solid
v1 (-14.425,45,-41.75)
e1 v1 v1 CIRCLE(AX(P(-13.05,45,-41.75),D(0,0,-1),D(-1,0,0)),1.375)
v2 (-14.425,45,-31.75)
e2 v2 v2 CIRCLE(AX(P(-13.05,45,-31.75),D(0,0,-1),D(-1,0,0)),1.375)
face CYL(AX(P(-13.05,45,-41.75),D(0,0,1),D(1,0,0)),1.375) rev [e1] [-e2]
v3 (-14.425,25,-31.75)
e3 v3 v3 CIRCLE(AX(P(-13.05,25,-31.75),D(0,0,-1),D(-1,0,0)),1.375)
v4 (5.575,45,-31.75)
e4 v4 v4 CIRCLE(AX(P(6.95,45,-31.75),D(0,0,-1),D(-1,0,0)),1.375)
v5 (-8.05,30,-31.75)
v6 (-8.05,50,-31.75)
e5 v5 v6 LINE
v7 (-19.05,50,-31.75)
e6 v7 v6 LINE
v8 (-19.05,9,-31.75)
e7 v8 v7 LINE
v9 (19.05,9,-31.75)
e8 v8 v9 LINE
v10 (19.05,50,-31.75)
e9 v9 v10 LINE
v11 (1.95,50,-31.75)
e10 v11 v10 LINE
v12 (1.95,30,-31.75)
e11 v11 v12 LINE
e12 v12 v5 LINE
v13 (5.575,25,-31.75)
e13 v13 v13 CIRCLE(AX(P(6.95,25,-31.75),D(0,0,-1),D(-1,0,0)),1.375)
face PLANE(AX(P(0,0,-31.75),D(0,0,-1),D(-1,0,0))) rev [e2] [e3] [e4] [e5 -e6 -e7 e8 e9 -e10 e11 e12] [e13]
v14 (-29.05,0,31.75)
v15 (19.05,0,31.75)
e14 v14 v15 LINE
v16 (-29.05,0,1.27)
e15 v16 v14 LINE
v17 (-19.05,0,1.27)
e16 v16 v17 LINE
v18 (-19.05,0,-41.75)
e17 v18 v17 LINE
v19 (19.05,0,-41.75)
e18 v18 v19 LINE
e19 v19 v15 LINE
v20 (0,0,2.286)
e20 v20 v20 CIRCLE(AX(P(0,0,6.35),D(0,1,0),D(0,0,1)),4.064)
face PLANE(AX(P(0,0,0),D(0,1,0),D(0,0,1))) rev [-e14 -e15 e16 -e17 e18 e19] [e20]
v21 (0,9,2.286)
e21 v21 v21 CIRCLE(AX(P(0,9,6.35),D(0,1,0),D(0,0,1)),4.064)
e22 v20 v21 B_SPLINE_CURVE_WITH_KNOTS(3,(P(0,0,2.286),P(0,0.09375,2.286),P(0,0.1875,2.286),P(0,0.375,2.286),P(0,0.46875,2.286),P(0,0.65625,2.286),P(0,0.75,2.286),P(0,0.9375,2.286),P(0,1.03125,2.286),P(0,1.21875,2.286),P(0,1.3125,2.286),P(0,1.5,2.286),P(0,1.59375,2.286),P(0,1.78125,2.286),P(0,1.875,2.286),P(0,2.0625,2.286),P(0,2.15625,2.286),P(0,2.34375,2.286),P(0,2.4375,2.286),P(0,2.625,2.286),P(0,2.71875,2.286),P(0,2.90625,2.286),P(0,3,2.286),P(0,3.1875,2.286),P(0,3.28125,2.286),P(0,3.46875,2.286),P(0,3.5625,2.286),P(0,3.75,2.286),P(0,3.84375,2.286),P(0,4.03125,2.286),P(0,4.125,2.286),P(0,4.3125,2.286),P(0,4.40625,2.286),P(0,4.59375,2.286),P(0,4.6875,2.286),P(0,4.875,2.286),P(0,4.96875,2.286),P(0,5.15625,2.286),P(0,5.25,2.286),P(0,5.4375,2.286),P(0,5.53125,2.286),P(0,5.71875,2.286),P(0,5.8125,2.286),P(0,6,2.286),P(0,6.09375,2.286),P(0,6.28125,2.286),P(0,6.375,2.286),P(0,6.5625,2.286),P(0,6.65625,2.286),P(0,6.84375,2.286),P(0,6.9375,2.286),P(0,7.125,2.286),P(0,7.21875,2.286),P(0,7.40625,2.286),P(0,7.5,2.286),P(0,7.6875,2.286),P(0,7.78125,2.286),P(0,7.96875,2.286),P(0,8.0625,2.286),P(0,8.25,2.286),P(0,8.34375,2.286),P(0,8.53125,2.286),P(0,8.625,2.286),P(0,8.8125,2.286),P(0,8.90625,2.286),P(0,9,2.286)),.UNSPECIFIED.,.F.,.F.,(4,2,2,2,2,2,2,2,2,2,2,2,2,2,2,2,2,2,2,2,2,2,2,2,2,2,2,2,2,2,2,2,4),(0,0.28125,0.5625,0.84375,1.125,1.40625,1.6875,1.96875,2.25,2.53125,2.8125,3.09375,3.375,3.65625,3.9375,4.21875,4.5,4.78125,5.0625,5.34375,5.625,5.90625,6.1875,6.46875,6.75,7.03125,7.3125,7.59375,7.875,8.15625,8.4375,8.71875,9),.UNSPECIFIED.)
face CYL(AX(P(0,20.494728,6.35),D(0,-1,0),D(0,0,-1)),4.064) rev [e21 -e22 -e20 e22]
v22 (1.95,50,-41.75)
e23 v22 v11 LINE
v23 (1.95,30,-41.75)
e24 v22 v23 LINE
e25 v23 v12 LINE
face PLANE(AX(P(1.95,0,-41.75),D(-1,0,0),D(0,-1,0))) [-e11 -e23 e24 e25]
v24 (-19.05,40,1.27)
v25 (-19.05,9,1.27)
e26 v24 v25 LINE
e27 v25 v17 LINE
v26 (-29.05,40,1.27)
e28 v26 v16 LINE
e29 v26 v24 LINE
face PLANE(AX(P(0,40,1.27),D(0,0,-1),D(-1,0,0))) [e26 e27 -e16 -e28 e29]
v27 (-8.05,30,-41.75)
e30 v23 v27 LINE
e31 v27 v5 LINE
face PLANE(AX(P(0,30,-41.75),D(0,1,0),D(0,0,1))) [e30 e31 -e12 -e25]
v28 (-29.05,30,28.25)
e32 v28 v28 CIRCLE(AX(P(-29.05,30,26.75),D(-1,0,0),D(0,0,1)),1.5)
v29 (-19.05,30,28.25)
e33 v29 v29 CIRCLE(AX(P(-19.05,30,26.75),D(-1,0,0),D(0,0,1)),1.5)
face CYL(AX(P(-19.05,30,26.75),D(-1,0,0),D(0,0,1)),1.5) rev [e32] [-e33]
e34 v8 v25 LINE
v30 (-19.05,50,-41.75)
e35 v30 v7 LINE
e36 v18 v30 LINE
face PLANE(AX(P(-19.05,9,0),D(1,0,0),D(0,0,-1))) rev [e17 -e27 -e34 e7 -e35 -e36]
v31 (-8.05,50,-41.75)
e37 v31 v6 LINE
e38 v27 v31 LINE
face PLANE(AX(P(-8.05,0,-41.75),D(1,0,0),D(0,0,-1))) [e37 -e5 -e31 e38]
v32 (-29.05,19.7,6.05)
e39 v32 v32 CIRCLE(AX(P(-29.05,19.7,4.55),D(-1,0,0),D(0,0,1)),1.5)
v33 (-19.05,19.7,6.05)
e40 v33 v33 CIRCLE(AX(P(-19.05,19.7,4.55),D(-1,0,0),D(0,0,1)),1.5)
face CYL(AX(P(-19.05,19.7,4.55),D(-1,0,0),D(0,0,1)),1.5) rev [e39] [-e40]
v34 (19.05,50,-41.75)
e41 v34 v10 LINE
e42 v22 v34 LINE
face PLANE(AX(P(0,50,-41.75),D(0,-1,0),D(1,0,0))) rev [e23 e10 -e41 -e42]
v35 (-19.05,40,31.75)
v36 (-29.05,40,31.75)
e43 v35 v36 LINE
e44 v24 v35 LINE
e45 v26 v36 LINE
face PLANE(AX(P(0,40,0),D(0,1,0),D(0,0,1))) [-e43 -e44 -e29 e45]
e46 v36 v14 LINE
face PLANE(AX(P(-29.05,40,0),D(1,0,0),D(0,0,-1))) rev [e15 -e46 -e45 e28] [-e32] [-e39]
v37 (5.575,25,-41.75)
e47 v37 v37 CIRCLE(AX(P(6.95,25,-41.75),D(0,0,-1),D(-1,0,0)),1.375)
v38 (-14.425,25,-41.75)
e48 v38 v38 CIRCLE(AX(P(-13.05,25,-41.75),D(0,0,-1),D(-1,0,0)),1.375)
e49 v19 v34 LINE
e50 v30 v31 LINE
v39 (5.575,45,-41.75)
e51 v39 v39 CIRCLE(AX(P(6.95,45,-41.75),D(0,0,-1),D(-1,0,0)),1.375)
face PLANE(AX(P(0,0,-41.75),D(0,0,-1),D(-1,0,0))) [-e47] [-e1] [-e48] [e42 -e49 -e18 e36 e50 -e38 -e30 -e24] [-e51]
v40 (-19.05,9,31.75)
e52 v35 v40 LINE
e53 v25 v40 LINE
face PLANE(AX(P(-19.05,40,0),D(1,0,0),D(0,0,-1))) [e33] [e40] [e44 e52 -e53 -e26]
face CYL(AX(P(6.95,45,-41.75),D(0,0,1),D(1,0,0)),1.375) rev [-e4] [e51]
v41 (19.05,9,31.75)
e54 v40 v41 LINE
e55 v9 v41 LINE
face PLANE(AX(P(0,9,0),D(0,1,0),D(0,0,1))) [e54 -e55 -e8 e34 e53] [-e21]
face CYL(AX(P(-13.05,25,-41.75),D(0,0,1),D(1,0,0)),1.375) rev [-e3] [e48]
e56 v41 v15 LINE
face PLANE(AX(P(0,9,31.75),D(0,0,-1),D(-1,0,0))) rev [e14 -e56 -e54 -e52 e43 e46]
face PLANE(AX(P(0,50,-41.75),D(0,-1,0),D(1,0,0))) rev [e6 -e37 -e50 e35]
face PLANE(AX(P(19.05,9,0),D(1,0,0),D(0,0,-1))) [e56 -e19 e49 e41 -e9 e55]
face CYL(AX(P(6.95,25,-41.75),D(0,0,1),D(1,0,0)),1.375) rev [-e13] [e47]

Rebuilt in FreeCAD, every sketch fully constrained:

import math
import FreeCAD as App
import Part
import Sketcher
Q = App.Units.Quantity

doc = App.newDocument("Part")
params = doc.addObject("Spreadsheet::Sheet", "Params")
for row, (alias, value) in enumerate([
    ("sketch1_width", "38.1 mm"),
    ("sketch1_height", "63.5 mm"),
    ("pad1_length", "9 mm"),
    ("sketch2_width", "10 mm"),
    ("sketch2_height", "30.48 mm"),
    ("pad2_length", "40 mm"),
    ("sketch3_diameter", "3 mm"),
    ("pocket1_length", "10 mm"),
    ("sketch4_diameter", "2.75 mm"),
    ("sketch4_width", "11 mm"),
    ("sketch4_width2", "10 mm"),
    ("sketch4_height", "50 mm"),
    ("sketch4_height2", "20 mm"),
    ("pad3_length", "10 mm"),
    ("pocket2_length", "9 mm"),
], start=1):
    params.set(f"A{row}", alias)
    params.set(f"B{row}", "=" + value)
    params.setAlias(f"B{row}", alias)

body = doc.addObject("PartDesign::Body", "Body")

# Sketch on XZ plane
sketch1 = body.newObject("Sketcher::SketchObject", "Sketch")
sketch1.AttachmentSupport = (doc.getObject("XZ_Plane"), [""])
sketch1.MapMode = "FlatFace"
sketch1.addGeometry([
    Part.LineSegment(App.Vector(-19.05, -31.75, 0), App.Vector(-19.05, 31.75, 0)),
    Part.LineSegment(App.Vector(-19.05, 31.75, 0), App.Vector(19.05, 31.75, 0)),
    Part.LineSegment(App.Vector(19.05, 31.75, 0), App.Vector(19.05, -31.75, 0)),
    Part.LineSegment(App.Vector(19.05, -31.75, 0), App.Vector(-19.05, -31.75, 0)),
], False)
sketch1.addConstraint([
    Sketcher.Constraint("Coincident", 0, 2, 1, 1),
    Sketcher.Constraint("Coincident", 1, 2, 2, 1),
    Sketcher.Constraint("Coincident", 2, 2, 3, 1),
    Sketcher.Constraint("Coincident", 3, 2, 0, 1),
    Sketcher.Constraint("Vertical", 0),
    Sketcher.Constraint("Horizontal", 1),
    Sketcher.Constraint("Vertical", 2),
    Sketcher.Constraint("Horizontal", 3),
    Sketcher.Constraint("Symmetric", 0, 2, 2, 2, -1, 1),
    Sketcher.Constraint("DistanceX", 1, 1, 1, 2, Q("38.1 mm")),
    Sketcher.Constraint("DistanceY", 0, 1, 0, 2, Q("63.5 mm")),
])
sketch1.setExpression("Constraints[9]", "Params.sketch1_width")
sketch1.setExpression("Constraints[10]", "Params.sketch1_height")
pad1 = body.newObject("PartDesign::Pad", "Pad")
pad1.Profile = sketch1
pad1.setExpression("Length", "Params.pad1_length")
pad1.Reversed = True

# Sketch on XZ plane
sketch2 = body.newObject("Sketcher::SketchObject", "Sketch001")
sketch2.AttachmentSupport = (doc.getObject("XZ_Plane"), [""])
sketch2.MapMode = "FlatFace"
sketch2.addGeometry([
    Part.LineSegment(App.Vector(-29.05, 1.27, 0), App.Vector(-29.05, 31.75, 0)),
    Part.LineSegment(App.Vector(-29.05, 31.75, 0), App.Vector(-19.05, 31.75, 0)),
    Part.LineSegment(App.Vector(-19.05, 31.75, 0), App.Vector(-19.05, 1.27, 0)),
    Part.LineSegment(App.Vector(-19.05, 1.27, 0), App.Vector(-29.05, 1.27, 0)),
], False)
sketch2.addConstraint([
    Sketcher.Constraint("Coincident", 0, 2, 1, 1),
    Sketcher.Constraint("Coincident", 1, 2, 2, 1),
    Sketcher.Constraint("Coincident", 2, 2, 3, 1),
    Sketcher.Constraint("Coincident", 3, 2, 0, 1),
    Sketcher.Constraint("Vertical", 0),
    Sketcher.Constraint("Horizontal", 1),
    Sketcher.Constraint("Vertical", 2),
    Sketcher.Constraint("Horizontal", 3),
    Sketcher.Constraint("DistanceX", 1, 1, 1, 2, Q("10 mm")),
    Sketcher.Constraint("DistanceY", 0, 1, 0, 2, Q("30.48 mm")),
    Sketcher.Constraint("DistanceX", 0, 2, -1, 1, Q("29.05 mm")),
    Sketcher.Constraint("DistanceY", -1, 1, 0, 2, Q("31.75 mm")),
])
sketch2.setExpression("Constraints[8]", "Params.sketch2_width")
sketch2.setExpression("Constraints[9]", "Params.sketch2_height")
pad2 = body.newObject("PartDesign::Pad", "Pad001")
pad2.Profile = sketch2
pad2.setExpression("Length", "Params.pad2_length")
pad2.Reversed = True

# Sketch on YZ plane
sketch3 = body.newObject("Sketcher::SketchObject", "Sketch002")
sketch3.AttachmentSupport = (doc.getObject("YZ_Plane"), [""])
sketch3.MapMode = "FlatFace"
sketch3.AttachmentOffset = App.Placement(App.Vector(0, 0, -29.05), App.Rotation())
sketch3.addGeometry([
    Part.Circle(App.Vector(19.7, 4.55, 0), App.Vector(0, 0, 1), 1.5),
    Part.Circle(App.Vector(30, 26.75, 0), App.Vector(0, 0, 1), 1.5),
], False)
sketch3.addConstraint([
    Sketcher.Constraint("Equal", 0, 1),
    Sketcher.Constraint("Diameter", 0, Q("3 mm")),
    Sketcher.Constraint("DistanceX", -1, 1, 1, 3, Q("30 mm")),
    Sketcher.Constraint("DistanceX", -1, 1, 0, 3, Q("19.7 mm")),
    Sketcher.Constraint("DistanceY", 0, 3, 1, 3, Q("22.2 mm")),
    Sketcher.Constraint("DistanceY", -1, 1, 0, 3, Q("4.55 mm")),
])
sketch3.setExpression("Constraints[1]", "Params.sketch3_diameter")
pocket1 = body.newObject("PartDesign::Pocket", "Pocket")
pocket1.Profile = sketch3
pocket1.setExpression("Length", "Params.pocket1_length")
pocket1.Reversed = True

# Sketch on XY plane
sketch4 = body.newObject("Sketcher::SketchObject", "Sketch003")
sketch4.AttachmentSupport = (doc.getObject("XY_Plane"), [""])
sketch4.MapMode = "FlatFace"
sketch4.AttachmentOffset = App.Placement(App.Vector(0, 0, -31.75), App.Rotation())
sketch4.addGeometry([
    Part.LineSegment(App.Vector(19.05, 0, 0), App.Vector(-19.05, 0, 0)),  # 0
    Part.LineSegment(App.Vector(-19.05, 0, 0), App.Vector(-19.05, 50, 0)),  # 1
    Part.LineSegment(App.Vector(-19.05, 50, 0), App.Vector(-8.05, 50, 0)),  # 2
    Part.LineSegment(App.Vector(-8.05, 50, 0), App.Vector(-8.05, 30, 0)),  # 3
    Part.LineSegment(App.Vector(-8.05, 30, 0), App.Vector(1.95, 30, 0)),  # 4
    Part.LineSegment(App.Vector(1.95, 30, 0), App.Vector(1.95, 50, 0)),  # 5
    Part.LineSegment(App.Vector(1.95, 50, 0), App.Vector(19.05, 50, 0)),  # 6
    Part.LineSegment(App.Vector(19.05, 50, 0), App.Vector(19.05, 0, 0)),  # 7
    Part.Circle(App.Vector(6.95, 25, 0), App.Vector(0, 0, 1), 1.375),  # 8
    Part.Circle(App.Vector(-13.05, 25, 0), App.Vector(0, 0, 1), 1.375),  # 9
    Part.Circle(App.Vector(6.95, 45, 0), App.Vector(0, 0, 1), 1.375),  # 10
    Part.Circle(App.Vector(-13.05, 45, 0), App.Vector(0, 0, 1), 1.375),  # 11
], False)
sketch4.addConstraint([
    Sketcher.Constraint("Coincident", 0, 2, 1, 1),
    Sketcher.Constraint("Coincident", 1, 2, 2, 1),
    Sketcher.Constraint("Coincident", 2, 2, 3, 1),
    Sketcher.Constraint("Coincident", 3, 2, 4, 1),
    Sketcher.Constraint("Coincident", 4, 2, 5, 1),
    Sketcher.Constraint("Coincident", 5, 2, 6, 1),
    Sketcher.Constraint("Coincident", 6, 2, 7, 1),
    Sketcher.Constraint("Coincident", 7, 2, 0, 1),
    Sketcher.Constraint("Horizontal", 0),
    Sketcher.Constraint("Vertical", 1),
    Sketcher.Constraint("Horizontal", 2),
    Sketcher.Constraint("Vertical", 3),
    Sketcher.Constraint("Horizontal", 4),
    Sketcher.Constraint("Vertical", 5),
    Sketcher.Constraint("Horizontal", 6),
    Sketcher.Constraint("Vertical", 7),
    Sketcher.Constraint("Equal", 8, 9),
    Sketcher.Constraint("Equal", 9, 10),
    Sketcher.Constraint("Equal", 10, 11),
    Sketcher.Constraint("Symmetric", 0, 2, 7, 2, -1, 1),
    Sketcher.Constraint("Horizontal", 8, 3, 9, 3),
    Sketcher.Constraint("Horizontal", 10, 3, 11, 3),
    Sketcher.Constraint("Horizontal", 2, 2, 5, 2),
    Sketcher.Constraint("Vertical", 8, 3, 10, 3),
    Sketcher.Constraint("Vertical", 9, 3, 11, 3),
    Sketcher.Constraint("Diameter", 8, Q("2.75 mm")),
    Sketcher.Constraint("DistanceX", 2, 1, 2, 2, Q("11 mm")),
    Sketcher.Constraint("DistanceX", 4, 1, 4, 2, Q("10 mm")),
    Sketcher.Constraint("DistanceY", 1, 1, 1, 2, Q("50 mm")),
    Sketcher.Constraint("DistanceY", 3, 2, 3, 1, Q("20 mm")),
    Sketcher.Constraint("DistanceX", 0, 2, 0, 1, Q("38.1 mm")),
    Sketcher.Constraint("DistanceY", -1, 1, 8, 3, Q("25 mm")),
    Sketcher.Constraint("DistanceY", -1, 1, 10, 3, Q("45 mm")),
    Sketcher.Constraint("DistanceX", 9, 3, 8, 3, Q("20 mm")),
    Sketcher.Constraint("DistanceX", 0, 2, 9, 3, Q("6 mm")),
])
sketch4.setExpression("Constraints[25]", "Params.sketch4_diameter")
sketch4.setExpression("Constraints[26]", "Params.sketch4_width")
sketch4.setExpression("Constraints[27]", "Params.sketch4_width2")
sketch4.setExpression("Constraints[28]", "Params.sketch4_height")
sketch4.setExpression("Constraints[29]", "Params.sketch4_height2")
pad3 = body.newObject("PartDesign::Pad", "Pad002")
pad3.Profile = sketch4
pad3.setExpression("Length", "Params.pad3_length")
pad3.Reversed = True

# Sketch on XZ plane
sketch5 = body.newObject("Sketcher::SketchObject", "Sketch004")
sketch5.AttachmentSupport = (doc.getObject("XZ_Plane"), [""])
sketch5.MapMode = "FlatFace"
sketch5.addGeometry([
    Part.ArcOfCircle(Part.Circle(App.Vector(0, 6.35, 0), App.Vector(0, 0, 1), 4.064), math.radians(-90), math.radians(0)),
    Part.ArcOfCircle(Part.Circle(App.Vector(0, 6.35, 0), App.Vector(0, 0, 1), 4.064), math.radians(90), math.radians(270)),
    Part.ArcOfCircle(Part.Circle(App.Vector(0, 6.35, 0), App.Vector(0, 0, 1), 4.064), math.radians(0), math.radians(90)),
], False)
sketch5.addConstraint([
    Sketcher.Constraint("Tangent", 0, 1, 1, 2),
    Sketcher.Constraint("Tangent", 1, 1, 2, 2),
    Sketcher.Constraint("Tangent", 2, 1, 0, 2),
    Sketcher.Constraint("PointOnObject", 0, 3, -2),
    Sketcher.Constraint("PointOnObject", 0, 1, -2),
    Sketcher.Constraint("PointOnObject", 1, 1, -2),
    Sketcher.Constraint("Horizontal", 1, 3, 2, 1),
    Sketcher.Constraint("Radius", 0, Q("4.064 mm")),
    Sketcher.Constraint("DistanceY", -1, 1, 0, 3, Q("6.35 mm")),
])
pocket2 = body.newObject("PartDesign::Pocket", "Pocket001")
pocket2.Profile = sketch5
pocket2.setExpression("Length", "Params.pocket2_length")

doc.recompute()
